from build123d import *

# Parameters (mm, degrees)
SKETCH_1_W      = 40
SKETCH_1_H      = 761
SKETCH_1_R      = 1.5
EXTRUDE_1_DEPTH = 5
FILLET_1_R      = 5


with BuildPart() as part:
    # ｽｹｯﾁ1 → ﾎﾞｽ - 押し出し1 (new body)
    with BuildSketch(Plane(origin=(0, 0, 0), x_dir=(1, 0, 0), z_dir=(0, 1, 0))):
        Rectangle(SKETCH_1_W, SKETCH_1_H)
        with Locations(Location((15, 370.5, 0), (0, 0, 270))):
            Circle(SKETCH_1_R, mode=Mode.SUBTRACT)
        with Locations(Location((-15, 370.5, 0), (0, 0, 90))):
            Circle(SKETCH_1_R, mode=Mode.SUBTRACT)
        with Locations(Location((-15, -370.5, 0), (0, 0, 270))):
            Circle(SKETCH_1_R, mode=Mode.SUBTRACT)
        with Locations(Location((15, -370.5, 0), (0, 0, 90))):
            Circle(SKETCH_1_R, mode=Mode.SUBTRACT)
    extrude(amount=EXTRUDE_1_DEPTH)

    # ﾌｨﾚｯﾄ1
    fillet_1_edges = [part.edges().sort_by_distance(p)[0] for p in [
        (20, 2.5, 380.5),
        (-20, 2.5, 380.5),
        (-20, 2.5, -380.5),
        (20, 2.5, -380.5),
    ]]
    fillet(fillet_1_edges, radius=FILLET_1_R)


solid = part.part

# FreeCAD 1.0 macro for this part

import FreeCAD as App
import Part
import Sketcher
Q = App.Units.Quantity


def edges_at(feature, points):
    """Names of the edges that pass closest to the given points."""
    edges = feature.Shape.Edges
    near = lambda p: min(range(len(edges)), key=lambda i: edges[i].distToShape(Part.Vertex(*p))[0])
    return sorted({f"Edge{near(p) + 1}" for p in points})


def add_polygon(sketch, points):
    """Adds a closed chain of lines whose ends are joined by coincident constraints."""
    first, n = sketch.GeometryCount, len(points)
    for a, b in zip(points, points[1:] + points[:1]):
        sketch.addGeometry(Part.LineSegment(App.Vector(*a, 0), App.Vector(*b, 0)), False)
    for i in range(n):
        sketch.addConstraint(Sketcher.Constraint("Coincident", first + i, 2, first + (i + 1) % n, 1))

doc = App.newDocument("Part")
body = doc.addObject("PartDesign::Body", "Body")

sketch1 = doc.addObject("Sketcher::SketchObject", "Sketch")
body.addObject(sketch1)
sketch1.AttachmentSupport = (doc.XZ_Plane, [""])
sketch1.MapMode = "FlatFace"
add_polygon(sketch1, [(-20, -380.5), (-20, 380.5), (20, 380.5), (20, -380.5)])
sketch1.addGeometry(Part.Circle(App.Vector(-15, 370.5, 0), App.Vector(0, 0, 1), 1.5), False)
sketch1.addGeometry(Part.Circle(App.Vector(15, 370.5, 0), App.Vector(0, 0, 1), 1.5), False)
sketch1.addGeometry(Part.Circle(App.Vector(-15, -370.5, 0), App.Vector(0, 0, 1), 1.5), False)
sketch1.addGeometry(Part.Circle(App.Vector(15, -370.5, 0), App.Vector(0, 0, 1), 1.5), False)
sketch1.addConstraint([
    Sketcher.Constraint("Vertical", 0),
    Sketcher.Constraint("Horizontal", 1),
    Sketcher.Constraint("Vertical", 2),
    Sketcher.Constraint("Horizontal", 3),
    Sketcher.Constraint("Equal", 4, 5),
    Sketcher.Constraint("Equal", 5, 6),
    Sketcher.Constraint("Equal", 6, 7),
    Sketcher.Constraint("Symmetric", 5, 3, 6, 3, -1, 1),
    Sketcher.Constraint("Symmetric", 4, 3, 7, 3, -1, 1),
    Sketcher.Constraint("Symmetric", 0, 2, 2, 2, -1, 1),
    Sketcher.Constraint("Symmetric", 4, 3, 5, 3, -2),
    Sketcher.Constraint("Diameter", 4, Q("3 mm")),
    Sketcher.Constraint("DistanceX", 1, 1, 1, 2, Q("40 mm")),
    Sketcher.Constraint("DistanceY", 0, 1, 0, 2, Q("761 mm")),
    Sketcher.Constraint("DistanceX", 4, 3, -1, 1, Q("15 mm")),
    Sketcher.Constraint("DistanceY", 6, 3, 4, 3, Q("741 mm")),
])
pad1 = doc.addObject("PartDesign::Pad", "Pad")
body.addObject(pad1)
pad1.Profile = sketch1
pad1.Length = 5
pad1.Reversed = True
doc.recompute()

fillet = doc.addObject("PartDesign::Fillet", "Fillet")
body.addObject(fillet)
fillet.Base = (pad1, edges_at(pad1, [
    (20, 2.5, 380.5),
    (-20, 2.5, 380.5),
    (-20, 2.5, -380.5),
    (20, 2.5, -380.5),
]))
fillet.Radius = 5

doc.recompute()
